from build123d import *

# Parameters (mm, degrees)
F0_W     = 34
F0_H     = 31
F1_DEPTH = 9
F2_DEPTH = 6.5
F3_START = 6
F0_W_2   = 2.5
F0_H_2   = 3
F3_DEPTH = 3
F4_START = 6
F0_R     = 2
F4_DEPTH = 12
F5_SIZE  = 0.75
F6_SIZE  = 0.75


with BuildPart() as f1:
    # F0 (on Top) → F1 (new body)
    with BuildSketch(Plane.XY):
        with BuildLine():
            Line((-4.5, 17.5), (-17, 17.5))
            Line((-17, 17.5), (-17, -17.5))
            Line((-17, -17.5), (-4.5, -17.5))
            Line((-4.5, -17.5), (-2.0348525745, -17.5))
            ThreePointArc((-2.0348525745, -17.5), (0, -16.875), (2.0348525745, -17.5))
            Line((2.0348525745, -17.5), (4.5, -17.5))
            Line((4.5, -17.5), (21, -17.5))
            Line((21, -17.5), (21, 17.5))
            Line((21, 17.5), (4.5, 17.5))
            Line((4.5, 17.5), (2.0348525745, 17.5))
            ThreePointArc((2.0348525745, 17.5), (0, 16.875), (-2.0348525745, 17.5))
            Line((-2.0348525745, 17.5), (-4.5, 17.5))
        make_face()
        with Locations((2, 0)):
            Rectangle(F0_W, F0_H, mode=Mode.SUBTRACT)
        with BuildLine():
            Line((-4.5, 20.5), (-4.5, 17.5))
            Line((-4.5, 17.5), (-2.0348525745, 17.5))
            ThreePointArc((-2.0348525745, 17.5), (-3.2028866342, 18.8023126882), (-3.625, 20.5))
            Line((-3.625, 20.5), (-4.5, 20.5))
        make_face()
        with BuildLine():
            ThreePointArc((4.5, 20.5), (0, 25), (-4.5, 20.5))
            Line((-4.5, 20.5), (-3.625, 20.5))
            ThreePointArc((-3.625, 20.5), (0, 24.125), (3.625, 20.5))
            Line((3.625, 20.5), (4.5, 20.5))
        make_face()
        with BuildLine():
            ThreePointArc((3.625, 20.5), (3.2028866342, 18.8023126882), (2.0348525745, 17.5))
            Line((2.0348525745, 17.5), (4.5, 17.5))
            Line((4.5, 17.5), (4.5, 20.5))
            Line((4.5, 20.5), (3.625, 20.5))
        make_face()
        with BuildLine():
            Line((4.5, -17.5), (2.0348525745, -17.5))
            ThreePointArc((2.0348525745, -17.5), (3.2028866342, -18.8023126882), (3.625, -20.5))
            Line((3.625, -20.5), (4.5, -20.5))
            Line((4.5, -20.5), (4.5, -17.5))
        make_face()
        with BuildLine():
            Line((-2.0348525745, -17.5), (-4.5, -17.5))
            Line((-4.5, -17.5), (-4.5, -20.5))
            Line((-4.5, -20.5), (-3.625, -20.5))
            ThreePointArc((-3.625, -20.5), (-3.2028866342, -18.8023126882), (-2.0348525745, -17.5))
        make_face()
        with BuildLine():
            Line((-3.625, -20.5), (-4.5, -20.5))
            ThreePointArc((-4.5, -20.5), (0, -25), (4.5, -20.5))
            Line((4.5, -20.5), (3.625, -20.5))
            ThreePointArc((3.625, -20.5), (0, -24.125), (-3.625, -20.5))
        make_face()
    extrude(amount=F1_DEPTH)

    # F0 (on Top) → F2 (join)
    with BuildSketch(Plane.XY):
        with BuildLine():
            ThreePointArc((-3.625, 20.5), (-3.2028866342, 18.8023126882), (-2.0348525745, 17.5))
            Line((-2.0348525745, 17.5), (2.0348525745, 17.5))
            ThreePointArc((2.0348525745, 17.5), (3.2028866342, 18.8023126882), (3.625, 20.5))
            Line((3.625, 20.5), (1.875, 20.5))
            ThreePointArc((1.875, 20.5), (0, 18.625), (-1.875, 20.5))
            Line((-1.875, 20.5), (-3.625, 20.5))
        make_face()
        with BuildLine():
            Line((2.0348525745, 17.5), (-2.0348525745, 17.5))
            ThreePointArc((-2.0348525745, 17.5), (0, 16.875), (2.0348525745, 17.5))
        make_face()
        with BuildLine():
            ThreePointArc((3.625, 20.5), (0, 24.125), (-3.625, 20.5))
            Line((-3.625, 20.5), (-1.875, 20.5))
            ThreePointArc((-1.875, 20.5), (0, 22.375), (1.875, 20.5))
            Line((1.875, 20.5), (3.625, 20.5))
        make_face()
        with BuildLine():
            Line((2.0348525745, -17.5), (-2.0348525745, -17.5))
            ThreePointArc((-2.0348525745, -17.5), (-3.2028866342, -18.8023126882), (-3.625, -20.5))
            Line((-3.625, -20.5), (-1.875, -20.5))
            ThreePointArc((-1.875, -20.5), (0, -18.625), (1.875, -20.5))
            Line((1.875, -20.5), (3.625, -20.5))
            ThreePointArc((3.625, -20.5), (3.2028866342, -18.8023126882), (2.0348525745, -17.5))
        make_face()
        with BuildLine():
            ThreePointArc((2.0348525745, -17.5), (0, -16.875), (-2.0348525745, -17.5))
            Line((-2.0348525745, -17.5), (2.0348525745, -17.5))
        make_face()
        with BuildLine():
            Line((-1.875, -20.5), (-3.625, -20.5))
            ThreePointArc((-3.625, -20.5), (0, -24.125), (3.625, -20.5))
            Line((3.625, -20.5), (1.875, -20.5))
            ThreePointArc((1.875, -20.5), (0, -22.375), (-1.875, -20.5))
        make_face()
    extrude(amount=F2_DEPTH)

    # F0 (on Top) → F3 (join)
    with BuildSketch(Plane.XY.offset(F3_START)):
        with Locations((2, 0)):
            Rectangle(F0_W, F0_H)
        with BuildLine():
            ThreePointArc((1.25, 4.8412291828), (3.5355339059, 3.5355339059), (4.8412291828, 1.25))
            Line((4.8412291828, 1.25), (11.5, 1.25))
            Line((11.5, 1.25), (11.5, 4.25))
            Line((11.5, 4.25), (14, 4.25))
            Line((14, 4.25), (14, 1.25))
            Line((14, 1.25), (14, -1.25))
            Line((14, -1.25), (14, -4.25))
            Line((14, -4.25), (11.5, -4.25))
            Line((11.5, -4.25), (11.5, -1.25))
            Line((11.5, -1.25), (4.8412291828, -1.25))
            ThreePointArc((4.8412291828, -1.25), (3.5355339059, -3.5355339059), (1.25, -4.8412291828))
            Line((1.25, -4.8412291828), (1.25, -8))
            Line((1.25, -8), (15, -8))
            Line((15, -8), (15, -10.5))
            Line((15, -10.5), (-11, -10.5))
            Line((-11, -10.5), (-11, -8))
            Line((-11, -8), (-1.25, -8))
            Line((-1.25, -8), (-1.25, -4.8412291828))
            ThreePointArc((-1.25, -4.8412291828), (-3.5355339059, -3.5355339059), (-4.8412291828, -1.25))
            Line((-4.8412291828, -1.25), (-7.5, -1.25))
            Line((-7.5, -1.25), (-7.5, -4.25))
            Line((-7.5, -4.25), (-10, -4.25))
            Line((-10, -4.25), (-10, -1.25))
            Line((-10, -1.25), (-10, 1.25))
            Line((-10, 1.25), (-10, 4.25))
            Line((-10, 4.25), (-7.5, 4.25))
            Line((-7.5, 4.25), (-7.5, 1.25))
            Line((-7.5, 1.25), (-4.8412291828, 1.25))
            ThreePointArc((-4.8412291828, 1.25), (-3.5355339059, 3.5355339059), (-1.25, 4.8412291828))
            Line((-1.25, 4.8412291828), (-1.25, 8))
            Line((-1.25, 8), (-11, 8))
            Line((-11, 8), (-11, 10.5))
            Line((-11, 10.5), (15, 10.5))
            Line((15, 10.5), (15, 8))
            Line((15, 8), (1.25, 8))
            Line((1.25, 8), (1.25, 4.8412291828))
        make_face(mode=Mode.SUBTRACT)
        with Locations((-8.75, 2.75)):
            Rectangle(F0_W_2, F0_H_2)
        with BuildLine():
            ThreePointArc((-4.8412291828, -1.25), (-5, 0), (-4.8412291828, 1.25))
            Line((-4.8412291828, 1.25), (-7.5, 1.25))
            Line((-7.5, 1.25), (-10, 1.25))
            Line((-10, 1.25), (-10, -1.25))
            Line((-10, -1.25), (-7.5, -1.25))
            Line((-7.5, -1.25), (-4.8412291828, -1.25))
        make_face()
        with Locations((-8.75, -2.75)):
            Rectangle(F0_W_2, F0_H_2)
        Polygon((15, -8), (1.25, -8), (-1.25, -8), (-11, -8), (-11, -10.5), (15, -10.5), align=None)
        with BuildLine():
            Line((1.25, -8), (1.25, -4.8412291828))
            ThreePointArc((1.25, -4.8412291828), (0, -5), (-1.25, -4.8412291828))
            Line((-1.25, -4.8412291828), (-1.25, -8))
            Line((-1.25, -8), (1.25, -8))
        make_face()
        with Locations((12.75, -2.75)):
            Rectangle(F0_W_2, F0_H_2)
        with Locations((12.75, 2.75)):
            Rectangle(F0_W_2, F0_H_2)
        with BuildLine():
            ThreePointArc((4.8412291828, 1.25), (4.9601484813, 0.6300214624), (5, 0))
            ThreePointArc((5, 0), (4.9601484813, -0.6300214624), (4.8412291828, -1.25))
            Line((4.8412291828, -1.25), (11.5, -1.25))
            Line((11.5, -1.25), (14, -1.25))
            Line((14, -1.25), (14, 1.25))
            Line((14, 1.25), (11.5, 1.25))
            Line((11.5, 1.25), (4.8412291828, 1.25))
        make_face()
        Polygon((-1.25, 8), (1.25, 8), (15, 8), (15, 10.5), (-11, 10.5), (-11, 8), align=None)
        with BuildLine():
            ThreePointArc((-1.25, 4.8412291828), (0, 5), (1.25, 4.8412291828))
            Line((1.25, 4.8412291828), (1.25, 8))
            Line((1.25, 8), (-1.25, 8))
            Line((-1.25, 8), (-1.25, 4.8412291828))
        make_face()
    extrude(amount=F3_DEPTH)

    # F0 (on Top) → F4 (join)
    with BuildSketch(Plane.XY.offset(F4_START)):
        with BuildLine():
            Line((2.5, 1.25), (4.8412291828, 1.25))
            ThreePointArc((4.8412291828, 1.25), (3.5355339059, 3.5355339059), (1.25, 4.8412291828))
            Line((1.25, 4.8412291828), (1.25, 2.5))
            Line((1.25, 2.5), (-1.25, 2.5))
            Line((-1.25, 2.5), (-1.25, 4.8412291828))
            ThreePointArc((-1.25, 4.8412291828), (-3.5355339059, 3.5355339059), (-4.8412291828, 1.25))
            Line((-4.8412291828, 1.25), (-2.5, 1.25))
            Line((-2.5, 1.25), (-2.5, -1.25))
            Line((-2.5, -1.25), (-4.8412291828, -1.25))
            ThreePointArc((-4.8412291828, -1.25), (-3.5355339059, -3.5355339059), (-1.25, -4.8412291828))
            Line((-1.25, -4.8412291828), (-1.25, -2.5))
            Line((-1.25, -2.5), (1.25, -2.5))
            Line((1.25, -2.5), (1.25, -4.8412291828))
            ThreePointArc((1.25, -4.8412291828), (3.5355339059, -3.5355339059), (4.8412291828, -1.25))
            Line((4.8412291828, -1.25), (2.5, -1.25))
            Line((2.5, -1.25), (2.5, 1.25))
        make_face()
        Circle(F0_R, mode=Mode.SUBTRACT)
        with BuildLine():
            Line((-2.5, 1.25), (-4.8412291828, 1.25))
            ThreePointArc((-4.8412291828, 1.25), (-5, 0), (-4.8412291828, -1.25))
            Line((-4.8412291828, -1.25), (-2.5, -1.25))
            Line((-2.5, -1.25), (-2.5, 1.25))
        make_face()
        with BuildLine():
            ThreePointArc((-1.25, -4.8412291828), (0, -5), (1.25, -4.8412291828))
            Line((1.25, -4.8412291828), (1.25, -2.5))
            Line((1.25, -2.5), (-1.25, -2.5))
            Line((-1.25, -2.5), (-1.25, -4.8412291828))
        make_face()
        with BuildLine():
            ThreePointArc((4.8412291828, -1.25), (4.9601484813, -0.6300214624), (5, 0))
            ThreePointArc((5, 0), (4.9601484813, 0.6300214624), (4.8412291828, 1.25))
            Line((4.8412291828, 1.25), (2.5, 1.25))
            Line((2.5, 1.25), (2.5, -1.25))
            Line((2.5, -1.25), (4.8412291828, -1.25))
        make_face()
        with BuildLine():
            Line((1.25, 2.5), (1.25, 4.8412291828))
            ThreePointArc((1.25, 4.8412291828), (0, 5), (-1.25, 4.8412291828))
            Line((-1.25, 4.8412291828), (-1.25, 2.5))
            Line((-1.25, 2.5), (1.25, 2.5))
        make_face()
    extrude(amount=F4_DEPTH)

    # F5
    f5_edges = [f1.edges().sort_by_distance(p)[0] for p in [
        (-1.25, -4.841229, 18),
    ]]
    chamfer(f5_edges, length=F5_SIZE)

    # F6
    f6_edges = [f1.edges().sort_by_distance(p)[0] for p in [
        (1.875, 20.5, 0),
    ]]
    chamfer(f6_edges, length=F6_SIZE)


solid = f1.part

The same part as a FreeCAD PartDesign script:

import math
import FreeCAD as App
import Part
import Sketcher
Q = App.Units.Quantity


def edges_at(feature, points):
    """Names of the edges that pass closest to the given points."""
    edges = feature.Shape.Edges
    near = lambda p: min(range(len(edges)), key=lambda i: edges[i].distToShape(Part.Vertex(*p))[0])
    return sorted({f"Edge{near(p) + 1}" for p in points})


def add_polygon(sketch, points):
    """Adds a closed chain of lines whose ends are joined by coincident constraints."""
    first, n = sketch.GeometryCount, len(points)
    for a, b in zip(points, points[1:] + points[:1]):
        sketch.addGeometry(Part.LineSegment(App.Vector(*a, 0), App.Vector(*b, 0)), False)
    for i in range(n):
        sketch.addConstraint(Sketcher.Constraint("Coincident", first + i, 2, first + (i + 1) % n, 1))

doc = App.newDocument("Part")
body = doc.addObject("PartDesign::Body", "Body")

sketch1 = body.newObject("Sketcher::SketchObject", "Sketch")
sketch1.AttachmentSupport = (doc.getObject("XY_Plane"), [""])
sketch1.MapMode = "FlatFace"
sketch1.addGeometry(Part.LineSegment(App.Vector(-17, 17.5, 0), App.Vector(-17, -17.5, 0)), False)
sketch1.addGeometry(Part.LineSegment(App.Vector(-17, -17.5, 0), App.Vector(-4.5, -17.5, 0)), False)
sketch1.addGeometry(Part.LineSegment(App.Vector(-4.5, -17.5, 0), App.Vector(-4.5, -20.5, 0)), False)
sketch1.addGeometry(Part.ArcOfCircle(Part.Circle(App.Vector(0, -20.5, 0), App.Vector(0, 0, 1), 4.5), math.radians(180), math.radians(360)), False)
sketch1.addGeometry(Part.LineSegment(App.Vector(4.5, -20.5, 0), App.Vector(4.5, -17.5, 0)), False)
sketch1.addGeometry(Part.LineSegment(App.Vector(4.5, -17.5, 0), App.Vector(21, -17.5, 0)), False)
sketch1.addGeometry(Part.LineSegment(App.Vector(21, -17.5, 0), App.Vector(21, 17.5, 0)), False)
sketch1.addGeometry(Part.LineSegment(App.Vector(21, 17.5, 0), App.Vector(4.5, 17.5, 0)), False)
sketch1.addGeometry(Part.LineSegment(App.Vector(4.5, 17.5, 0), App.Vector(4.5, 20.5, 0)), False)
sketch1.addGeometry(Part.ArcOfCircle(Part.Circle(App.Vector(0, 20.5, 0), App.Vector(0, 0, 1), 4.5), math.radians(0), math.radians(180)), False)
sketch1.addGeometry(Part.LineSegment(App.Vector(-4.5, 20.5, 0), App.Vector(-4.5, 17.5, 0)), False)
sketch1.addGeometry(Part.LineSegment(App.Vector(-4.5, 17.5, 0), App.Vector(-17, 17.5, 0)), False)
sketch1.addGeometry(Part.ArcOfCircle(Part.Circle(App.Vector(0, -20.5, 0), App.Vector(0, 0, 1), 3.6), math.radians(124), math.radians(180)), False)
sketch1.addGeometry(Part.ArcOfCircle(Part.Circle(App.Vector(0, -20.5, 0), App.Vector(0, 0, 1), 3.6), math.radians(56), math.radians(124)), False)
sketch1.addGeometry(Part.ArcOfCircle(Part.Circle(App.Vector(0, -20.5, 0), App.Vector(0, 0, 1), 3.6), math.radians(0), math.radians(56)), False)
sketch1.addGeometry(Part.ArcOfCircle(Part.Circle(App.Vector(0, -20.5, 0), App.Vector(0, 0, 1), 3.6), math.radians(180), math.radians(360)), False)
sketch1.addGeometry(Part.ArcOfCircle(Part.Circle(App.Vector(0, 20.5, 0), App.Vector(0, 0, 1), 3.6), math.radians(-124), math.radians(-56)), False)
sketch1.addGeometry(Part.ArcOfCircle(Part.Circle(App.Vector(0, 20.5, 0), App.Vector(0, 0, 1), 3.6), math.radians(180), math.radians(236)), False)
sketch1.addGeometry(Part.ArcOfCircle(Part.Circle(App.Vector(0, 20.5, 0), App.Vector(0, 0, 1), 3.6), math.radians(0), math.radians(180)), False)
sketch1.addGeometry(Part.ArcOfCircle(Part.Circle(App.Vector(0, 20.5, 0), App.Vector(0, 0, 1), 3.6), math.radians(-56), math.radians(0)), False)
add_polygon(sketch1, [(19, -15.5), (-15, -15.5), (-15, 15.5), (19, 15.5)])
sketch1.addConstraint([
    Sketcher.Constraint("Coincident", 0, 2, 1, 1),
    Sketcher.Constraint("Coincident", 1, 2, 2, 1),
    Sketcher.Constraint("Tangent", 2, 2, 3, 1),
    Sketcher.Constraint("Tangent", 3, 2, 4, 1),
    Sketcher.Constraint("Coincident", 4, 2, 5, 1),
    Sketcher.Constraint("Coincident", 5, 2, 6, 1),
    Sketcher.Constraint("Coincident", 6, 2, 7, 1),
    Sketcher.Constraint("Coincident", 7, 2, 8, 1),
    Sketcher.Constraint("Tangent", 8, 2, 9, 1),
    Sketcher.Constraint("Tangent", 9, 2, 10, 1),
    Sketcher.Constraint("Coincident", 10, 2, 11, 1),
    Sketcher.Constraint("Coincident", 11, 2, 0, 1),
    Sketcher.Constraint("Tangent", 12, 1, 13, 2),
    Sketcher.Constraint("Tangent", 13, 1, 14, 2),
    Sketcher.Constraint("Tangent", 14, 1, 15, 2),
    Sketcher.Constraint("Tangent", 15, 1, 12, 2),
    Sketcher.Constraint("Tangent", 16, 1, 17, 2),
    Sketcher.Constraint("Tangent", 17, 1, 18, 2),
    Sketcher.Constraint("Tangent", 18, 1, 19, 2),
    Sketcher.Constraint("Tangent", 19, 1, 16, 2),
    Sketcher.Constraint("Vertical", 0),
    Sketcher.Constraint("Horizontal", 1),
    Sketcher.Constraint("Vertical", 2),
    Sketcher.Constraint("Vertical", 4),
    Sketcher.Constraint("Horizontal", 5),
    Sketcher.Constraint("Vertical", 6),
    Sketcher.Constraint("Horizontal", 7),
    Sketcher.Constraint("Vertical", 8),
    Sketcher.Constraint("Vertical", 10),
    Sketcher.Constraint("Horizontal", 11),
    Sketcher.Constraint("Horizontal", 20),
    Sketcher.Constraint("Vertical", 21),
    Sketcher.Constraint("Horizontal", 22),
    Sketcher.Constraint("Vertical", 23),
    Sketcher.Constraint("Coincident", 12, 3, 3, 3),
    Sketcher.Constraint("Coincident", 16, 3, 9, 3),
    Sketcher.Constraint("Equal", 3, 9),
    Sketcher.Constraint("Equal", 12, 13),
    Sketcher.Constraint("Equal", 15, 16),
    Sketcher.Constraint("Equal", 16, 17),
    Sketcher.Constraint("Symmetric", 3, 3, 9, 3, -1, 1),
    Sketcher.Constraint("Symmetric", 1, 2, 4, 2, -2),
    Sketcher.Constraint("Horizontal", 7, 2, 10, 2),
    Sketcher.Constraint("Horizontal", 5, 2, 12, 1),
    Sketcher.Constraint("Horizontal", 12, 1, 13, 1),
    Sketcher.Constraint("Horizontal", 3, 2, 14, 1),
    Sketcher.Constraint("Horizontal", 14, 1, 15, 1),
    Sketcher.Constraint("Horizontal", 11, 2, 16, 1),
    Sketcher.Constraint("Horizontal", 9, 2, 17, 1),
    Sketcher.Constraint("Horizontal", 17, 1, 18, 1),
    Sketcher.Constraint("Horizontal", 16, 1, 19, 1),
    Sketcher.Constraint("Vertical", 12, 1, 16, 1),
    Sketcher.Constraint("Radius", 3, Q("4.5 mm")),
    Sketcher.Constraint("DistanceX", 20, 2, 20, 1, Q("34 mm")),
    Sketcher.Constraint("DistanceY", 0, 2, 0, 1, Q("35 mm")),
    Sketcher.Constraint("DistanceY", 2, 2, 2, 1, Q("3 mm")),
    Sketcher.Constraint("DistanceY", 21, 1, 21, 2, Q("31 mm")),
    Sketcher.Constraint("DistanceX", 1, 1, 1, 2, Q("12.5 mm")),
    Sketcher.Constraint("DistanceX", 5, 1, 5, 2, Q("16.5 mm")),
    Sketcher.Constraint("DistanceX", 20, 2, -1, 1, Q("15 mm")),
    Sketcher.Constraint("Radius", 12, Q("3.625 mm")),
    Sketcher.Constraint("DistanceY", 0, 2, 20, 2, Q("2 mm")),
])
pad1 = body.newObject("PartDesign::Pad", "Pad")
pad1.Profile = sketch1
pad1.Length = 9

sketch2 = body.newObject("Sketcher::SketchObject", "Sketch001")
sketch2.AttachmentSupport = (doc.getObject("XY_Plane"), [""])
sketch2.MapMode = "FlatFace"
sketch2.addGeometry([
    Part.ArcOfCircle(Part.Circle(App.Vector(0, 20.5, 0), App.Vector(0, 0, 1), 3.6), math.radians(180), math.radians(236)),
    Part.ArcOfCircle(Part.Circle(App.Vector(0, 20.5, 0), App.Vector(0, 0, 1), 3.6), math.radians(-124), math.radians(-56)),
    Part.ArcOfCircle(Part.Circle(App.Vector(0, 20.5, 0), App.Vector(0, 0, 1), 3.6), math.radians(-56), math.radians(0)),
    Part.ArcOfCircle(Part.Circle(App.Vector(0, 20.5, 0), App.Vector(0, 0, 1), 3.6), math.radians(0), math.radians(180)),
    Part.Circle(App.Vector(0, 20.5, 0), App.Vector(0, 0, 1), 1.9),
    Part.ArcOfCircle(Part.Circle(App.Vector(0, -20.5, 0), App.Vector(0, 0, 1), 3.6), math.radians(124), math.radians(180)),
    Part.ArcOfCircle(Part.Circle(App.Vector(0, -20.5, 0), App.Vector(0, 0, 1), 3.6), math.radians(180), math.radians(360)),
    Part.ArcOfCircle(Part.Circle(App.Vector(0, -20.5, 0), App.Vector(0, 0, 1), 3.6), math.radians(0), math.radians(56)),
    Part.ArcOfCircle(Part.Circle(App.Vector(0, -20.5, 0), App.Vector(0, 0, 1), 3.6), math.radians(56), math.radians(124)),
    Part.Circle(App.Vector(0, -20.5, 0), App.Vector(0, 0, 1), 1.9),
], False)
sketch2.addConstraint([
    Sketcher.Constraint("Tangent", 0, 2, 1, 1),
    Sketcher.Constraint("Tangent", 1, 2, 2, 1),
    Sketcher.Constraint("Tangent", 2, 2, 3, 1),
    Sketcher.Constraint("Tangent", 3, 2, 0, 1),
    Sketcher.Constraint("Tangent", 5, 2, 6, 1),
    Sketcher.Constraint("Tangent", 6, 2, 7, 1),
    Sketcher.Constraint("Tangent", 7, 2, 8, 1),
    Sketcher.Constraint("Tangent", 8, 2, 5, 1),
    Sketcher.Constraint("Coincident", 4, 3, 0, 3),
    Sketcher.Constraint("Coincident", 9, 3, 5, 3),
    Sketcher.Constraint("Equal", 0, 1),
    Sketcher.Constraint("Equal", 3, 5),
    Sketcher.Constraint("Equal", 5, 6),
    Sketcher.Constraint("Equal", 4, 9),
    Sketcher.Constraint("Symmetric", 0, 3, 5, 3, -1, 1),
    Sketcher.Constraint("Symmetric", 0, 2, 1, 2, -2),
    Sketcher.Constraint("Horizontal", 4, 3, 2, 2),
    Sketcher.Constraint("Horizontal", 2, 2, 3, 2),
    Sketcher.Constraint("Horizontal", 9, 3, 5, 2),
    Sketcher.Constraint("Horizontal", 5, 2, 6, 2),
    Sketcher.Constraint("Horizontal", 7, 2, 8, 2),
    Sketcher.Constraint("Vertical", 1, 2, 7, 2),
    Sketcher.Constraint("Diameter", 4, Q("3.75 mm")),
    Sketcher.Constraint("Radius", 0, Q("3.625 mm")),
    Sketcher.Constraint("DistanceY", 5, 3, 0, 3, Q("41 mm")),
    Sketcher.Constraint("DistanceY", 0, 2, 0, 3, Q("3 mm")),
])
pad2 = body.newObject("PartDesign::Pad", "Pad001")
pad2.Profile = sketch2
pad2.Length = 6.5

sketch3 = body.newObject("Sketcher::SketchObject", "Sketch002")
sketch3.AttachmentSupport = (doc.getObject("XY_Plane"), [""])
sketch3.MapMode = "FlatFace"
sketch3.AttachmentOffset = App.Placement(App.Vector(0, 0, 6), App.Rotation())
add_polygon(sketch3, [(-15, 15.5), (-15, -15.5), (19, -15.5), (19, 15.5)])
sketch3.addGeometry(Part.ArcOfCircle(Part.Circle(App.Vector(0, 0, 0), App.Vector(0, 0, 1), 5), math.radians(14), math.radians(76)), False)
sketch3.addGeometry(Part.ArcOfCircle(Part.Circle(App.Vector(0, 0, 0), App.Vector(0, 0, 1), 5), math.radians(0), math.radians(14.48)), False)
sketch3.addGeometry(Part.ArcOfCircle(Part.Circle(App.Vector(0, 0, 0), App.Vector(0, 0, 1), 5), math.radians(-14.48), math.radians(0)), False)
sketch3.addGeometry(Part.ArcOfCircle(Part.Circle(App.Vector(0, 0, 0), App.Vector(0, 0, 1), 5), math.radians(-76), math.radians(-14)), False)
sketch3.addGeometry(Part.ArcOfCircle(Part.Circle(App.Vector(0, 0, 0), App.Vector(0, 0, 1), 5), math.radians(-104), math.radians(-76)), False)
sketch3.addGeometry(Part.ArcOfCircle(Part.Circle(App.Vector(0, 0, 0), App.Vector(0, 0, 1), 5), math.radians(-166), math.radians(-104)), False)
sketch3.addGeometry(Part.ArcOfCircle(Part.Circle(App.Vector(0, 0, 0), App.Vector(0, 0, 1), 5), math.radians(166), math.radians(194)), False)
sketch3.addGeometry(Part.ArcOfCircle(Part.Circle(App.Vector(0, 0, 0), App.Vector(0, 0, 1), 5), math.radians(104), math.radians(166)), False)
sketch3.addGeometry(Part.ArcOfCircle(Part.Circle(App.Vector(0, 0, 0), App.Vector(0, 0, 1), 5), math.radians(76), math.radians(104)), False)
sketch3.addConstraint([
    Sketcher.Constraint("Tangent", 4, 1, 5, 2),
    Sketcher.Constraint("Tangent", 5, 1, 6, 2),
    Sketcher.Constraint("Tangent", 6, 1, 7, 2),
    Sketcher.Constraint("Tangent", 7, 1, 8, 2),
    Sketcher.Constraint("Tangent", 8, 1, 9, 2),
    Sketcher.Constraint("Tangent", 9, 1, 10, 2),
    Sketcher.Constraint("Tangent", 10, 1, 11, 2),
    Sketcher.Constraint("Tangent", 11, 1, 12, 2),
    Sketcher.Constraint("Tangent", 12, 1, 4, 2),
    Sketcher.Constraint("Vertical", 0),
    Sketcher.Constraint("Horizontal", 1),
    Sketcher.Constraint("Vertical", 2),
    Sketcher.Constraint("Horizontal", 3),
    Sketcher.Constraint("Coincident", 4, 3, -1, 1),
    Sketcher.Constraint("Coincident", 6, 3, -1, 1),
    Sketcher.Constraint("Coincident", 8, 3, -1, 1),
    Sketcher.Constraint("Coincident", 10, 3, -1, 1),
    Sketcher.Constraint("PointOnObject", 5, 1, -1),
    Sketcher.Constraint("Horizontal", 7, 1, 8, 1),
    Sketcher.Constraint("Horizontal", 6, 1, 9, 1),
    Sketcher.Constraint("Horizontal", 4, 1, 10, 1),
    Sketcher.Constraint("Horizontal", 11, 1, 12, 1),
    Sketcher.Constraint("Vertical", 4, 1, 6, 1),
    Sketcher.Constraint("Vertical", 8, 1, 11, 1),
    Sketcher.Constraint("Radius", 4, Q("5 mm")),
    Sketcher.Constraint("DistanceX", 1, 1, 1, 2, Q("34 mm")),
    Sketcher.Constraint("DistanceY", 0, 2, 0, 1, Q("31 mm")),
    Sketcher.Constraint("DistanceX", 0, 2, -1, 1, Q("15 mm")),
    Sketcher.Constraint("DistanceY", 0, 2, -1, 1, Q("15.5 mm")),
    Sketcher.Constraint("DistanceY", 6, 1, 4, 1, Q("2.5 mm")),
    Sketcher.Constraint("DistanceX", 8, 1, 7, 1, Q("2.5 mm")),
])
pad3 = body.newObject("PartDesign::Pad", "Pad002")
pad3.Profile = sketch3
pad3.Length = 3

sketch4 = body.newObject("Sketcher::SketchObject", "Sketch003")
sketch4.AttachmentSupport = (doc.getObject("XY_Plane"), [""])
sketch4.MapMode = "FlatFace"
sketch4.AttachmentOffset = App.Placement(App.Vector(0, 0, 6), App.Rotation())
sketch4.addGeometry([
    Part.ArcOfCircle(Part.Circle(App.Vector(0, 0, 0), App.Vector(0, 0, 1), 5), math.radians(14), math.radians(76)),
    Part.ArcOfCircle(Part.Circle(App.Vector(0, 0, 0), App.Vector(0, 0, 1), 5), math.radians(76), math.radians(104)),
    Part.ArcOfCircle(Part.Circle(App.Vector(0, 0, 0), App.Vector(0, 0, 1), 5), math.radians(104), math.radians(166)),
    Part.ArcOfCircle(Part.Circle(App.Vector(0, 0, 0), App.Vector(0, 0, 1), 5), math.radians(166), math.radians(194)),
    Part.ArcOfCircle(Part.Circle(App.Vector(0, 0, 0), App.Vector(0, 0, 1), 5), math.radians(-166), math.radians(-104)),
    Part.ArcOfCircle(Part.Circle(App.Vector(0, 0, 0), App.Vector(0, 0, 1), 5), math.radians(-104), math.radians(-76)),
    Part.ArcOfCircle(Part.Circle(App.Vector(0, 0, 0), App.Vector(0, 0, 1), 5), math.radians(-76), math.radians(-14)),
    Part.ArcOfCircle(Part.Circle(App.Vector(0, 0, 0), App.Vector(0, 0, 1), 5), math.radians(-14.48), math.radians(0)),
    Part.ArcOfCircle(Part.Circle(App.Vector(0, 0, 0), App.Vector(0, 0, 1), 5), math.radians(0), math.radians(14.48)),
    Part.Circle(App.Vector(0, 0, 0), App.Vector(0, 0, 1), 2),
], False)
sketch4.addConstraint([
    Sketcher.Constraint("Tangent", 0, 2, 1, 1),
    Sketcher.Constraint("Tangent", 1, 2, 2, 1),
    Sketcher.Constraint("Tangent", 2, 2, 3, 1),
    Sketcher.Constraint("Tangent", 3, 2, 4, 1),
    Sketcher.Constraint("Tangent", 4, 2, 5, 1),
    Sketcher.Constraint("Tangent", 5, 2, 6, 1),
    Sketcher.Constraint("Tangent", 6, 2, 7, 1),
    Sketcher.Constraint("Tangent", 7, 2, 8, 1),
    Sketcher.Constraint("Tangent", 8, 2, 0, 1),
    Sketcher.Constraint("Coincident", 0, 3, -1, 1),
    Sketcher.Constraint("Coincident", 2, 3, -1, 1),
    Sketcher.Constraint("Coincident", 4, 3, -1, 1),
    Sketcher.Constraint("Coincident", 6, 3, -1, 1),
    Sketcher.Constraint("Coincident", 9, 3, -1, 1),
    Sketcher.Constraint("PointOnObject", 7, 2, -1),
    Sketcher.Constraint("Horizontal", 0, 2, 1, 2),
    Sketcher.Constraint("Horizontal", 4, 2, 5, 2),
    Sketcher.Constraint("Horizontal", 3, 2, 6, 2),
    Sketcher.Constraint("Horizontal", 2, 2, 8, 2),
    Sketcher.Constraint("Vertical", 2, 2, 3, 2),
    Sketcher.Constraint("Vertical", 1, 2, 4, 2),
    Sketcher.Constraint("Diameter", 9, Q("4 mm")),
    Sketcher.Constraint("Radius", 0, Q("5 mm")),
    Sketcher.Constraint("DistanceX", 1, 2, 0, 2, Q("2.5 mm")),
    Sketcher.Constraint("DistanceY", 3, 2, 2, 2, Q("2.5 mm")),
])
pad4 = body.newObject("PartDesign::Pad", "Pad003")
pad4.Profile = sketch4
pad4.Length = 12
doc.recompute()

chamfer = body.newObject("PartDesign::Chamfer", "Chamfer")
chamfer.Base = (pad4, edges_at(pad4, [(-3.536, -3.536, 18)]))
chamfer.Size = 0.75
doc.recompute()

chamfer2 = body.newObject("PartDesign::Chamfer", "Chamfer001")
chamfer2.Base = (chamfer, edges_at(chamfer, [(1.875, 20.5, 0)]))
chamfer2.Size = 0.75

doc.recompute()
